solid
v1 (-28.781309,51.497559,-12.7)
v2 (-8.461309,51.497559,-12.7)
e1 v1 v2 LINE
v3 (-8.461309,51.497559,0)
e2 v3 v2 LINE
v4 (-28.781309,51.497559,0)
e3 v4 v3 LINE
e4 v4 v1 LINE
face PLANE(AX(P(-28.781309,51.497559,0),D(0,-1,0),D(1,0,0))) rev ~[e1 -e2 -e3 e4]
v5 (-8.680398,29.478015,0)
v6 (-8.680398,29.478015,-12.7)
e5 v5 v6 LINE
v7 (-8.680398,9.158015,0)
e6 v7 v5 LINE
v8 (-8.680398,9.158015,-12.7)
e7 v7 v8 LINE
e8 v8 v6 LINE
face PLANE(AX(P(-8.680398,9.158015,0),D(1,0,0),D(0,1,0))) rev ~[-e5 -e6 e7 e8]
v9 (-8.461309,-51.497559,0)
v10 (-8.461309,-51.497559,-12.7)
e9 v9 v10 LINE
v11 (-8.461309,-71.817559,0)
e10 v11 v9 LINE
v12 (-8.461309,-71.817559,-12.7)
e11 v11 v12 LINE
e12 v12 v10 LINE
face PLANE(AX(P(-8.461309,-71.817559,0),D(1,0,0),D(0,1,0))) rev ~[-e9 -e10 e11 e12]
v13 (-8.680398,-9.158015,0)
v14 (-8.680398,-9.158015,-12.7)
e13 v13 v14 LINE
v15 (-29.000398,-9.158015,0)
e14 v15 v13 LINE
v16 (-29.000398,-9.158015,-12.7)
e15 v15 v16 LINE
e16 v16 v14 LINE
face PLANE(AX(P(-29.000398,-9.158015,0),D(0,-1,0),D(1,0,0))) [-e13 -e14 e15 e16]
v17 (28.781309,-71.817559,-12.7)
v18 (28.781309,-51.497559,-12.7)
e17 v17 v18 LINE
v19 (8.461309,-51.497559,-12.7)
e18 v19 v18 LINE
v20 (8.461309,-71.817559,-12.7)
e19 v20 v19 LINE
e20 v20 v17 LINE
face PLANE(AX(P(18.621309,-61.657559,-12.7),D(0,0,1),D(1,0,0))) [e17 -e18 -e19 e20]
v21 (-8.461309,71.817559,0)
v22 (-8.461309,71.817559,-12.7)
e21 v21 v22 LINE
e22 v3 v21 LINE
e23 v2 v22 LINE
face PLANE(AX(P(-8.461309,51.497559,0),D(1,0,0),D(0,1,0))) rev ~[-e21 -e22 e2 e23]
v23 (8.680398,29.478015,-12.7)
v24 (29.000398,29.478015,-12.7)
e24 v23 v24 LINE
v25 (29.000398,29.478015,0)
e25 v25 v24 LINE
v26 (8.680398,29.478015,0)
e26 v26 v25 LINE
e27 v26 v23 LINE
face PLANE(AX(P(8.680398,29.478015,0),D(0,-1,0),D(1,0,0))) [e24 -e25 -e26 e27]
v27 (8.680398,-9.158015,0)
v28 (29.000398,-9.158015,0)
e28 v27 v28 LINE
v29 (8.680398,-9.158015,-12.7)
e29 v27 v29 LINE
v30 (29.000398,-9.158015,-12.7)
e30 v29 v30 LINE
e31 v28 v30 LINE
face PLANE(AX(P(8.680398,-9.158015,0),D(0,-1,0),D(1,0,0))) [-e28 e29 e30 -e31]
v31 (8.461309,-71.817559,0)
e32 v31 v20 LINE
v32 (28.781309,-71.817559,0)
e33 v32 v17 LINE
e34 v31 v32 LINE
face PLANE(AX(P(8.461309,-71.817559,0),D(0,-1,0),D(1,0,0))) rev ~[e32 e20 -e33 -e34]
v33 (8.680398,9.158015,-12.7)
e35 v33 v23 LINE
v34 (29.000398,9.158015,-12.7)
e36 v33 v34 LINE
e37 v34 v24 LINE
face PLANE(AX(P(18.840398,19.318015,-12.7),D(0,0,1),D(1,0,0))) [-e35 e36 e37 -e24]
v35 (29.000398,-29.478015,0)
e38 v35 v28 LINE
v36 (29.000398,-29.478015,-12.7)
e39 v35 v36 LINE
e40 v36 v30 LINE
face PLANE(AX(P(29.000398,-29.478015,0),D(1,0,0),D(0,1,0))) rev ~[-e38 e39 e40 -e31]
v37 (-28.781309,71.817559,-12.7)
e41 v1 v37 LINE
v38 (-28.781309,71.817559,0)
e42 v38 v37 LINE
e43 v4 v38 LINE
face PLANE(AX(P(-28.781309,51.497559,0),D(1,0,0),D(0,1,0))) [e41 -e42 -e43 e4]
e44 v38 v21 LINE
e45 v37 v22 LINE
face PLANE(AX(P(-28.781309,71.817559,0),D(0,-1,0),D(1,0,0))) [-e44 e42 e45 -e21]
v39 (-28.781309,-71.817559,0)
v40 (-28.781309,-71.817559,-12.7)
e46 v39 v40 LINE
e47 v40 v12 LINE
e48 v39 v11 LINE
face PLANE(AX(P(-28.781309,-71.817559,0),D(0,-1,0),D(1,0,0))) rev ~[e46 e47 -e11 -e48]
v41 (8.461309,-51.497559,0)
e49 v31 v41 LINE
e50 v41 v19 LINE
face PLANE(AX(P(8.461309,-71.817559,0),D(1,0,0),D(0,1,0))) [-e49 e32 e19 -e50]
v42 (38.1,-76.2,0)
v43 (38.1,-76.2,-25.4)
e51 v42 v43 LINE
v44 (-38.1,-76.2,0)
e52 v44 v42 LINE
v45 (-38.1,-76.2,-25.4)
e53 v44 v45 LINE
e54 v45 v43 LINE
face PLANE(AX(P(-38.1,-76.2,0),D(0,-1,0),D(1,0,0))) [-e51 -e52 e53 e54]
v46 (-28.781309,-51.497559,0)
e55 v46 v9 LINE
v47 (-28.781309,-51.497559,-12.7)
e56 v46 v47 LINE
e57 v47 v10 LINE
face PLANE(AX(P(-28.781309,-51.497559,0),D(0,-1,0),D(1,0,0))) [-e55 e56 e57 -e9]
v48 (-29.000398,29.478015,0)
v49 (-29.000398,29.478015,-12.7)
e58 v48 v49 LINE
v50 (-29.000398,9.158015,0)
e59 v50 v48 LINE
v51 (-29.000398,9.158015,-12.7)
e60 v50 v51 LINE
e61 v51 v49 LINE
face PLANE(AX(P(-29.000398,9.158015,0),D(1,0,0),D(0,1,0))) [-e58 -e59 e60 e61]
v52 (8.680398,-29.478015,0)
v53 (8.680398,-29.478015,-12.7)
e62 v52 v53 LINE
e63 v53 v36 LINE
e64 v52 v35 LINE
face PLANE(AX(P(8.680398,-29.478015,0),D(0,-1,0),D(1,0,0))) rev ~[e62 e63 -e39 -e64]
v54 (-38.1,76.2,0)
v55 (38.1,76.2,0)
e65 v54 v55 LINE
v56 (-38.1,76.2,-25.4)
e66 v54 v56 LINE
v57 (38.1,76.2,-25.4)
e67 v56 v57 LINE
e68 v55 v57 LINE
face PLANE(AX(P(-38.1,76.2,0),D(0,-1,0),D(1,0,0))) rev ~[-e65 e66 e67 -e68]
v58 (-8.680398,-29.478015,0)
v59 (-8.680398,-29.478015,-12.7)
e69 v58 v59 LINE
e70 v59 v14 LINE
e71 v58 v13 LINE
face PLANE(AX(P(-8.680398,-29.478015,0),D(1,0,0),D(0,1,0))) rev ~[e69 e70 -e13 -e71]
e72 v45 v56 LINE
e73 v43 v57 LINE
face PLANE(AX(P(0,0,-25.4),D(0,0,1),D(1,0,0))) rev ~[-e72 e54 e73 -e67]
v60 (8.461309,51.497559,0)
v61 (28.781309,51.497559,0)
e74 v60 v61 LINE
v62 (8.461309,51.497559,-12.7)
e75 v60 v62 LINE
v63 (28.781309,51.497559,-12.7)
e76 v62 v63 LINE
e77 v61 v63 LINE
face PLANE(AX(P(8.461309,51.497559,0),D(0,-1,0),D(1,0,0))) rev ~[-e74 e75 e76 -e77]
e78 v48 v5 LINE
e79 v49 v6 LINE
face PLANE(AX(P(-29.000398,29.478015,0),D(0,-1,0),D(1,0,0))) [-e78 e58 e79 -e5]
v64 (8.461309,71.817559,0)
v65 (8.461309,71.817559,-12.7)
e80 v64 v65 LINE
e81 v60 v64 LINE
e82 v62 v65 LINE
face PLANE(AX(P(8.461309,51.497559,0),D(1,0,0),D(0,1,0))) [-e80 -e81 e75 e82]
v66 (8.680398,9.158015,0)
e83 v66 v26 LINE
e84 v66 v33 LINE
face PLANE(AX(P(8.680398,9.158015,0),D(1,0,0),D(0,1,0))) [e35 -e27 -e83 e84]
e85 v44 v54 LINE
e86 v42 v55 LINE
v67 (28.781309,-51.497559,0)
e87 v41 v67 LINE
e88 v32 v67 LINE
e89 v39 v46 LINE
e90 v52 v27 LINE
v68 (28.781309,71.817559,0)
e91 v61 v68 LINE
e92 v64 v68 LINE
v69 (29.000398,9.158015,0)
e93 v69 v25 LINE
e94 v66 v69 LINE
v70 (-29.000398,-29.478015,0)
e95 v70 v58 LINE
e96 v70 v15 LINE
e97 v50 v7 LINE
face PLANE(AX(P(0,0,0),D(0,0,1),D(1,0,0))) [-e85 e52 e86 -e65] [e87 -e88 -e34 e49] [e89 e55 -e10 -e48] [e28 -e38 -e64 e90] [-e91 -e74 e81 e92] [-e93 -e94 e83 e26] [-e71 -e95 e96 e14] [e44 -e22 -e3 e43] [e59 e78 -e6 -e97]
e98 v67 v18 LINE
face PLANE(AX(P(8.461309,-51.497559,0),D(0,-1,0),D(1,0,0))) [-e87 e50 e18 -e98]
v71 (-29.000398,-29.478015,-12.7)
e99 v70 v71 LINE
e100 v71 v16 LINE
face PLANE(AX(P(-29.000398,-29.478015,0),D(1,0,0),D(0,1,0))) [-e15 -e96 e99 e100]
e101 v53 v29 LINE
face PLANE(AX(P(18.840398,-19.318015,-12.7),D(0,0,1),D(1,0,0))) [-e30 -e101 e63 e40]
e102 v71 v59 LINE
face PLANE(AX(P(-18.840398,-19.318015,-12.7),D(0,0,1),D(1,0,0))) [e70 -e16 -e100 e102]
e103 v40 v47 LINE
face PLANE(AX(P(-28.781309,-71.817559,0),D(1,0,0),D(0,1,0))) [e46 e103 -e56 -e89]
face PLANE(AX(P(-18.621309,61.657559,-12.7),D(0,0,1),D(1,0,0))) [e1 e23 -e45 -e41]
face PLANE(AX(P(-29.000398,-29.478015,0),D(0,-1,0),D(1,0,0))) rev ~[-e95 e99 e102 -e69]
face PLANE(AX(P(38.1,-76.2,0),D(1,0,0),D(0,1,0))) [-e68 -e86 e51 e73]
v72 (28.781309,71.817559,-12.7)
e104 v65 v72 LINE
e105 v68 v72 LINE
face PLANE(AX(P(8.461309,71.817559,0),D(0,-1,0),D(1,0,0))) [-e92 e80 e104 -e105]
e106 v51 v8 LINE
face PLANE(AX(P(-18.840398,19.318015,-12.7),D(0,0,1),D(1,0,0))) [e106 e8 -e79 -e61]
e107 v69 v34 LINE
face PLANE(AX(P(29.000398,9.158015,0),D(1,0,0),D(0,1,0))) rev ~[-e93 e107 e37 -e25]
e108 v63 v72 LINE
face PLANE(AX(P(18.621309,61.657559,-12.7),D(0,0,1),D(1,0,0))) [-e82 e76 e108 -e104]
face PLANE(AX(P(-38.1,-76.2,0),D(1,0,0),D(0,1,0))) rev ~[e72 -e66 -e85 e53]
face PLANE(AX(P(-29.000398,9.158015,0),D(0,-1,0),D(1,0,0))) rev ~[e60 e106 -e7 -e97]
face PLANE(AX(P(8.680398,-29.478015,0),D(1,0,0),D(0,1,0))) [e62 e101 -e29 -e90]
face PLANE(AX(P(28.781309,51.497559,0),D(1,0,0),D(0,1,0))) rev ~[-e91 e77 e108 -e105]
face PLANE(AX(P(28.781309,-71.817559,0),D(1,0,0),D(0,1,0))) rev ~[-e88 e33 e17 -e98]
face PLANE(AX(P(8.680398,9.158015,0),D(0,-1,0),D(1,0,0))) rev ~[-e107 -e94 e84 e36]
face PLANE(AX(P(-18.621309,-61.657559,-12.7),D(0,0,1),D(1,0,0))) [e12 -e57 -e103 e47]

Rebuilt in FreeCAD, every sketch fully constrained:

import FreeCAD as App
import Part
import Sketcher
from FreeCAD import Vector
Q = App.Units.Quantity


def add_polygon(sketch, points):
    """Adds a closed chain of lines whose ends are joined by coincident constraints."""
    first, n = sketch.GeometryCount, len(points)
    for a, b in zip(points, points[1:] + points[:1]):
        sketch.addGeometry(Part.LineSegment(App.Vector(*a, 0), App.Vector(*b, 0)), False)
    for i in range(n):
        sketch.addConstraint(Sketcher.Constraint("Coincident", first + i, 2, first + (i + 1) % n, 1))

doc = App.newDocument("Part")
params = doc.addObject("Spreadsheet::Sheet", "Params")
for row, (alias, value) in enumerate([
    ("sketch1_width", "3 in"),
    ("sketch1_height", "6 in"),
    ("pad1_length", "1 in"),
    ("sketch2_width", "0.8 in"),
    ("pocket1_length", "0.5 in"),
], start=1):
    params.set(f"A{row}", alias)
    params.set(f"B{row}", "=" + value)
    params.setAlias(f"B{row}", alias)

body = doc.addObject("PartDesign::Body", "Body")

# Sketch on XY plane
sketch1 = body.newObject("Sketcher::SketchObject", "Sketch")
sketch1.AttachmentSupport = (doc.getObject("XY_Plane"), [""])
sketch1.MapMode = "FlatFace"
add_polygon(sketch1, [(-38, 76), (-38, -76), (38, -76), (38, 76)])  # lines 0-3
sketch1.addConstraint([
    Sketcher.Constraint("Vertical", 0),
    Sketcher.Constraint("Horizontal", 1),
    Sketcher.Constraint("Vertical", 2),
    Sketcher.Constraint("Horizontal", 3),
    Sketcher.Constraint("Symmetric", 0, 2, 2, 2, -1, 1),
    Sketcher.Constraint("DistanceX", 1, 1, 1, 2, Q("3 in")),
    Sketcher.Constraint("DistanceY", 0, 2, 0, 1, Q("6 in")),
])
sketch1.setExpression("Constraints[9]", "Params.sketch1_width")
sketch1.setExpression("Constraints[10]", "Params.sketch1_height")
pad1 = body.newObject("PartDesign::Pad", "Pad")
pad1.Profile = sketch1
pad1.setExpression("Length", "Params.pad1_length")
pad1.Reversed = True

# Sketch on XY plane
sketch2 = body.newObject("Sketcher::SketchObject", "Sketch001")
sketch2.AttachmentSupport = (doc.getObject("XY_Plane"), [""])
sketch2.MapMode = "FlatFace"
add_polygon(sketch2, [(-29, 72), (-29, 51), (-8, 51), (-8, 72)])  # lines 0-3
add_polygon(sketch2, [(8, 72), (8, 51), (29, 51), (29, 72)])  # lines 4-7
add_polygon(sketch2, [(8, -51), (8, -72), (29, -72), (29, -51)])  # lines 8-11
add_polygon(sketch2, [(-29, -51), (-29, -72), (-8, -72), (-8, -51)])  # lines 12-15
add_polygon(sketch2, [(-29, 29), (-29, 9), (-9, 9), (-9, 29)])  # lines 16-19
add_polygon(sketch2, [(9, 29), (9, 9), (29, 9), (29, 29)])  # lines 20-23
add_polygon(sketch2, [(-29, -9), (-29, -29), (-9, -29), (-9, -9)])  # lines 24-27
add_polygon(sketch2, [(9, -9), (9, -29), (29, -29), (29, -9)])  # lines 28-31
sketch2.addConstraint([
    Sketcher.Constraint("Vertical", 0),
    Sketcher.Constraint("Horizontal", 1),
    Sketcher.Constraint("Vertical", 2),
    Sketcher.Constraint("Horizontal", 3),
    Sketcher.Constraint("Vertical", 4),
    Sketcher.Constraint("Horizontal", 5),
    Sketcher.Constraint("Vertical", 6),
    Sketcher.Constraint("Horizontal", 7),
    Sketcher.Constraint("Vertical", 8),
    Sketcher.Constraint("Horizontal", 9),
    Sketcher.Constraint("Vertical", 10),
    Sketcher.Constraint("Horizontal", 11),
    Sketcher.Constraint("Vertical", 12),
    Sketcher.Constraint("Horizontal", 13),
    Sketcher.Constraint("Vertical", 14),
    Sketcher.Constraint("Horizontal", 15),
    Sketcher.Constraint("Vertical", 16),
    Sketcher.Constraint("Horizontal", 17),
    Sketcher.Constraint("Vertical", 18),
    Sketcher.Constraint("Horizontal", 19),
    Sketcher.Constraint("Vertical", 20),
    Sketcher.Constraint("Horizontal", 21),
    Sketcher.Constraint("Vertical", 22),
    Sketcher.Constraint("Horizontal", 23),
    Sketcher.Constraint("Vertical", 24),
    Sketcher.Constraint("Horizontal", 25),
    Sketcher.Constraint("Vertical", 26),
    Sketcher.Constraint("Horizontal", 27),
    Sketcher.Constraint("Vertical", 28),
    Sketcher.Constraint("Horizontal", 29),
    Sketcher.Constraint("Vertical", 30),
    Sketcher.Constraint("Horizontal", 31),
    Sketcher.Constraint("Symmetric", 2, 2, 8, 2, -1, 1),
    Sketcher.Constraint("Symmetric", 0, 2, 10, 2, -1, 1),
    Sketcher.Constraint("Symmetric", 6, 2, 12, 2, -1, 1),
    Sketcher.Constraint("Symmetric", 4, 2, 14, 2, -1, 1),
    Sketcher.Constraint("Symmetric", 22, 2, 24, 2, -1, 1),
    Sketcher.Constraint("Symmetric", 20, 2, 26, 2, -1, 1),
    Sketcher.Constraint("Symmetric", 18, 2, 28, 2, -1, 1),
    Sketcher.Constraint("Symmetric", 16, 2, 30, 2, -1, 1),
    Sketcher.Constraint("Symmetric", 1, 2, 4, 2, -2),
    Sketcher.Constraint("Symmetric", 3, 2, 6, 2, -2),
    Sketcher.Constraint("Symmetric", 17, 2, 20, 2, -2),
    Sketcher.Constraint("Symmetric", 19, 2, 22, 2, -2),
    Sketcher.Constraint("Equal", 15, 17),
    Sketcher.Constraint("Equal", 31, 0),
    Sketcher.Constraint("Equal", 14, 16),
    Sketcher.Constraint("DistanceX", 1, 1, 1, 2, Q("0.8 in")),
    Sketcher.Constraint("DistanceX", 16, 2, -1, 1, Q("29.000398 mm")),
    Sketcher.Constraint("DistanceX", 0, 2, -1, 1, Q("28.781309 mm")),
    Sketcher.Constraint("DistanceY", -1, 1, 0, 2, Q("51.497559 mm")),
    Sketcher.Constraint("DistanceY", 24, 2, 16, 2, Q("38.63603 mm")),
])
sketch2.setExpression("Constraints[79]", "Params.sketch2_width")
pocket1 = body.newObject("PartDesign::Pocket", "Pocket")
pocket1.Profile = sketch2
pocket1.setExpression("Length", "Params.pocket1_length")

doc.recompute()
